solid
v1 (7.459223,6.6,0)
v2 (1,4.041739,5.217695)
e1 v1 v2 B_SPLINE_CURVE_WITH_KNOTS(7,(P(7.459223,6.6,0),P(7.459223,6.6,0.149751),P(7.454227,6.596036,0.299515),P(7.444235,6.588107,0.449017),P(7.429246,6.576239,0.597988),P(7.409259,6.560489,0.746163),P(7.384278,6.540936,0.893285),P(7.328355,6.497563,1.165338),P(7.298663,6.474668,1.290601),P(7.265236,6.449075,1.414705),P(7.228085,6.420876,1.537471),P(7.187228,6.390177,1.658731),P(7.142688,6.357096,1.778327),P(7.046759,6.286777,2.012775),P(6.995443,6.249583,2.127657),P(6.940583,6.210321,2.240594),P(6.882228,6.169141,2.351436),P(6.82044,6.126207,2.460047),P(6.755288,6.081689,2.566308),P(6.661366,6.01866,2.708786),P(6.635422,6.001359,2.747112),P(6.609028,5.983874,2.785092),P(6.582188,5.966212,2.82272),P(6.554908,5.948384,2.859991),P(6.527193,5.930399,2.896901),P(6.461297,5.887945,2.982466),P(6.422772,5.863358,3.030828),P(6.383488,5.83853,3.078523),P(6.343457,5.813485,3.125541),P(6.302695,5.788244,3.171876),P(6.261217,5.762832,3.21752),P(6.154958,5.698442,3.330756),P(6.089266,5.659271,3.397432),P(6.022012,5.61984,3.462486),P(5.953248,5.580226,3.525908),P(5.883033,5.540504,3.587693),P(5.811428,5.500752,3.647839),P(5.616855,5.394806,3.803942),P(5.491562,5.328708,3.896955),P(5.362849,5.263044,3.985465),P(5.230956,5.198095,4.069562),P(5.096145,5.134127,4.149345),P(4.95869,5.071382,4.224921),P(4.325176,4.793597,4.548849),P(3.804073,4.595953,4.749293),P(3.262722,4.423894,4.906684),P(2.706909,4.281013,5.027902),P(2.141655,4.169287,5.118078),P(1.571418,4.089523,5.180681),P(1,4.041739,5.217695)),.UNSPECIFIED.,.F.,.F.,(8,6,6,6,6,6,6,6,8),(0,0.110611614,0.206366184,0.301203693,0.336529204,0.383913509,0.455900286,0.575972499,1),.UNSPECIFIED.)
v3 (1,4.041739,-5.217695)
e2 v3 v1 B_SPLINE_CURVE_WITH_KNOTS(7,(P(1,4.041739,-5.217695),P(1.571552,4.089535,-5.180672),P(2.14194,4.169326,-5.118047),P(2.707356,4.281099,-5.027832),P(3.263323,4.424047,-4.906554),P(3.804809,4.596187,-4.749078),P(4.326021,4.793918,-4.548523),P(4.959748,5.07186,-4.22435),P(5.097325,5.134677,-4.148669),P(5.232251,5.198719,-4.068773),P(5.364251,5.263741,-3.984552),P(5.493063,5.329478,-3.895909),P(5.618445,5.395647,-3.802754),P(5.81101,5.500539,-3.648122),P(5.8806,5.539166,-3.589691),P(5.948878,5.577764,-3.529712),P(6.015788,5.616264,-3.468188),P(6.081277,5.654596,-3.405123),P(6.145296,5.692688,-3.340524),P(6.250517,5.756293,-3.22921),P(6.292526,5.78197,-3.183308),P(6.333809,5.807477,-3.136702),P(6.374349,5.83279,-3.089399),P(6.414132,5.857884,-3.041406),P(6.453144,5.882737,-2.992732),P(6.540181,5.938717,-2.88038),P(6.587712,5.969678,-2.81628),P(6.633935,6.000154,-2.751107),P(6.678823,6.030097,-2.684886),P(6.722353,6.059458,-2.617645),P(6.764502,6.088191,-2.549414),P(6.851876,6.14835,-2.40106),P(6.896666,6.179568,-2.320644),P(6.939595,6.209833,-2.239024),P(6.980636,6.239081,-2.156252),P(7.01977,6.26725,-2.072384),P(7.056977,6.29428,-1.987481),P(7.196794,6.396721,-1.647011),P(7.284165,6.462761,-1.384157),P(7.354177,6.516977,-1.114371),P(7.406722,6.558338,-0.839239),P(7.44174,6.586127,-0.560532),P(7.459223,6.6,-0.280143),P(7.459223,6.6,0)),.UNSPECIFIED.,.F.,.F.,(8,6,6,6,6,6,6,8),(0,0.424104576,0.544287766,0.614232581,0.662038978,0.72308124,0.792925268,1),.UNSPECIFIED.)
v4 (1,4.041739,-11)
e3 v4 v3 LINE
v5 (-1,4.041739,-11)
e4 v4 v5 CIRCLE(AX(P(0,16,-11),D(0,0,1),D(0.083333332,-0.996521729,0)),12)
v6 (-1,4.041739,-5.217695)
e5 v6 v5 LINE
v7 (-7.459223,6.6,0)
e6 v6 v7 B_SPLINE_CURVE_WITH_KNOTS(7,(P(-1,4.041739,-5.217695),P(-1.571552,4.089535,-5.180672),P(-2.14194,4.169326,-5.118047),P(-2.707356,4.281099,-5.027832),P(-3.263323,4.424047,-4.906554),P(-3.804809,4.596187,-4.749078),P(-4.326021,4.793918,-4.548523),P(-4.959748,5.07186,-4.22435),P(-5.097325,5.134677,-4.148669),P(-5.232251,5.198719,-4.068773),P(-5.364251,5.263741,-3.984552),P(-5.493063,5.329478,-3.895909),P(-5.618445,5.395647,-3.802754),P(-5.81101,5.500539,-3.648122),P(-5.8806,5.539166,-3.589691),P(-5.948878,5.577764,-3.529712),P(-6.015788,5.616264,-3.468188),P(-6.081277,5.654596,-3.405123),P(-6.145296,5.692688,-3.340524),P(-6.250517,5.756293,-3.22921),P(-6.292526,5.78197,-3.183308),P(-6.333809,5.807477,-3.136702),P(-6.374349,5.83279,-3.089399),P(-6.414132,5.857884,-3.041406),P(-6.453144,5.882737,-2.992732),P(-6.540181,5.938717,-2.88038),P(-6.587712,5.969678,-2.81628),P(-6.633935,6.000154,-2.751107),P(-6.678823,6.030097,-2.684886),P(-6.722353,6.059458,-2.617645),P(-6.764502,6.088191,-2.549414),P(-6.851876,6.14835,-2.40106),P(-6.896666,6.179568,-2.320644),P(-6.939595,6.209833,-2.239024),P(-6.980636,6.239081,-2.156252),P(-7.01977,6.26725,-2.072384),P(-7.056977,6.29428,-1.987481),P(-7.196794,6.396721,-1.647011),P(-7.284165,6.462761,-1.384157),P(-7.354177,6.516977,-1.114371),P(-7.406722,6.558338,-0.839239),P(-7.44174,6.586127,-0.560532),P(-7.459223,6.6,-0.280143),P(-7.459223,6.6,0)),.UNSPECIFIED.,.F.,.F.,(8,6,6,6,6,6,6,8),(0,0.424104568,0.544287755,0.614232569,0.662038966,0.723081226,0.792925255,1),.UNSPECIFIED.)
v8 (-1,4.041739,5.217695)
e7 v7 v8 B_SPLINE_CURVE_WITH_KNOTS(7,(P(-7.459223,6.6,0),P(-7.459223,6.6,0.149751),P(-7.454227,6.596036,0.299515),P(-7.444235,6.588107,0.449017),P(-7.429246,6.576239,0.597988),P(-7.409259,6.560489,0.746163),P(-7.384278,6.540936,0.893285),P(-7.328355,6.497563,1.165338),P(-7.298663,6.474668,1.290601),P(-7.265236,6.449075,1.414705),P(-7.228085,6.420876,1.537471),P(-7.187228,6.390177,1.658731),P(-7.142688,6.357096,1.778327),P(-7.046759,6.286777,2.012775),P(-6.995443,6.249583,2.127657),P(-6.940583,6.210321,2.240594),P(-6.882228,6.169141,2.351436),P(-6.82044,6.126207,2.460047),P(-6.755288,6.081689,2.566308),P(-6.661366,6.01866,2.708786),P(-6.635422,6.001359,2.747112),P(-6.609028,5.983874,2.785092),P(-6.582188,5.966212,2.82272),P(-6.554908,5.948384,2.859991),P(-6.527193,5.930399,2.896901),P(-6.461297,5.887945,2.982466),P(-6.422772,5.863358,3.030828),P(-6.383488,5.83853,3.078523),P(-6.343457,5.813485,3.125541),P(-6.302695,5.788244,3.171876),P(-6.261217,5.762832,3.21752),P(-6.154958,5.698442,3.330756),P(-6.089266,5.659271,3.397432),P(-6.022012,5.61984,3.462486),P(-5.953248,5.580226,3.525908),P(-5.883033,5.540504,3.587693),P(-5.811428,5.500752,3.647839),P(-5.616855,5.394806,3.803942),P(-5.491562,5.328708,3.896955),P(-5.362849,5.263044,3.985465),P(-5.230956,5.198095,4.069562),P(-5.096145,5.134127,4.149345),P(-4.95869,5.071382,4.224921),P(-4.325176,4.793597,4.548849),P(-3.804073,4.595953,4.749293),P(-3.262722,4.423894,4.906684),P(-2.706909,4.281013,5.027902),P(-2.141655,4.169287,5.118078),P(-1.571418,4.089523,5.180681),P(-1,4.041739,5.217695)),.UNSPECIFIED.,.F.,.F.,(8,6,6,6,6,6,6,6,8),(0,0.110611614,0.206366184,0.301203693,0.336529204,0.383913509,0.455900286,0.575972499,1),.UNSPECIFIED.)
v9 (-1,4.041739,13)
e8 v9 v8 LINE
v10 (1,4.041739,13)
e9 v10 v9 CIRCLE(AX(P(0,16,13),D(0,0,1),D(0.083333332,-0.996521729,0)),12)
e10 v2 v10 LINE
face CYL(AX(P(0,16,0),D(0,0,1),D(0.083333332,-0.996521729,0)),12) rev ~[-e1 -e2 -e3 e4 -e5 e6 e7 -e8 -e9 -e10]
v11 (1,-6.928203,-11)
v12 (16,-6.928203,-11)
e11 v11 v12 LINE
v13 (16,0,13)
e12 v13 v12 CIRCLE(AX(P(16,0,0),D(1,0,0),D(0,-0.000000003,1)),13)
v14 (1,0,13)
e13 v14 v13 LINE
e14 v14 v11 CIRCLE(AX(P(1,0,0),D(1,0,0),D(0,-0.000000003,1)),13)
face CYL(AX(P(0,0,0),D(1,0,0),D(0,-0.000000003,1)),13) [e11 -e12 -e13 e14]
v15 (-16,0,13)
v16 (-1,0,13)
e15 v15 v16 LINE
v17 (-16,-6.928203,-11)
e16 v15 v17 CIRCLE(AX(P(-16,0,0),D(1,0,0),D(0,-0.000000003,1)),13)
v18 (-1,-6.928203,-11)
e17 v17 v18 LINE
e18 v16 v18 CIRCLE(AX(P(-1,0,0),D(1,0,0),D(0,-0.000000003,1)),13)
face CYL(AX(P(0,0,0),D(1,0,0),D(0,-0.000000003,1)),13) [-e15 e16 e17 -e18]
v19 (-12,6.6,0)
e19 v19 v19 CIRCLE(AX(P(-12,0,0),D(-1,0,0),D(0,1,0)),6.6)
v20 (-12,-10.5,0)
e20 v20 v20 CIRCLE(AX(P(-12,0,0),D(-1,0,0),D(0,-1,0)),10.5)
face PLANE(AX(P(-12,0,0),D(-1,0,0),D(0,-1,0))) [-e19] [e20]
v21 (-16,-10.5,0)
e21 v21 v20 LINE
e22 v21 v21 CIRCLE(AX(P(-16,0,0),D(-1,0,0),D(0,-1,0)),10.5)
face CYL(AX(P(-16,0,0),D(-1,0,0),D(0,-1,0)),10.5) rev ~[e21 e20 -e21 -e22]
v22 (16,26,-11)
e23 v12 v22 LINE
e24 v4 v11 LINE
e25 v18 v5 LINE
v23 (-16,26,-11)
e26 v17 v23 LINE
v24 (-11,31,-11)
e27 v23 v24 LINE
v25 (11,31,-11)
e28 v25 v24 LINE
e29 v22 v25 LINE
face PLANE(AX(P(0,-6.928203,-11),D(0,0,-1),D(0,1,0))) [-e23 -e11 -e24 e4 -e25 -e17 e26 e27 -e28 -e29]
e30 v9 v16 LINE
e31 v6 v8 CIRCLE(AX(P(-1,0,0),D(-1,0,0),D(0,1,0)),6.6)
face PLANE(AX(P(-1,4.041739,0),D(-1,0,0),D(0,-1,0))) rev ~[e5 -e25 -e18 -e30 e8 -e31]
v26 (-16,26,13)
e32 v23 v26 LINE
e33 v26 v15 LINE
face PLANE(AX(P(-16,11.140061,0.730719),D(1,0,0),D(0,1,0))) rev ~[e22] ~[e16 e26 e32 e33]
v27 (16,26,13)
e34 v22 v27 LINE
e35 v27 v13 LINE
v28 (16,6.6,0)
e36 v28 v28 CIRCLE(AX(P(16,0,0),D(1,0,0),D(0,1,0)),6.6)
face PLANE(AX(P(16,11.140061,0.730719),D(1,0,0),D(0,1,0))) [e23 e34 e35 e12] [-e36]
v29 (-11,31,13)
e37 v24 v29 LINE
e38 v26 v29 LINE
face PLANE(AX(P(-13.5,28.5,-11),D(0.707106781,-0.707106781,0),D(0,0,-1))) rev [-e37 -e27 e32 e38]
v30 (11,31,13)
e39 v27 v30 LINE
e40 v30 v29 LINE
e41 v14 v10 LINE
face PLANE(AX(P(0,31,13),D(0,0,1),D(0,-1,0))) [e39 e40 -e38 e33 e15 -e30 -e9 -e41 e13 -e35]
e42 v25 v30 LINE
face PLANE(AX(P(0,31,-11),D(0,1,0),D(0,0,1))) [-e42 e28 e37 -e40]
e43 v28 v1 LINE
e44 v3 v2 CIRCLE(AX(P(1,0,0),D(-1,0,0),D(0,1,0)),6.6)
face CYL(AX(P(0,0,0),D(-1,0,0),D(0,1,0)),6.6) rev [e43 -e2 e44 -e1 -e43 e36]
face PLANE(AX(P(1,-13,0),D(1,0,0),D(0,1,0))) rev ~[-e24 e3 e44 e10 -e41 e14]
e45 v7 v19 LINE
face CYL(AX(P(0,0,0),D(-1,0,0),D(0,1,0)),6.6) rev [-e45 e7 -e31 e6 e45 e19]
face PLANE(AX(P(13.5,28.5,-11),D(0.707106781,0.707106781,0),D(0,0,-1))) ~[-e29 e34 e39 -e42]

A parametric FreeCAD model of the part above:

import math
import FreeCAD as App
import Part
import Sketcher

V = App.Vector


def edges_at(feature, points):
    """Names of the edges that pass closest to the given points."""
    edges = feature.Shape.Edges
    near = lambda p: min(range(len(edges)), key=lambda i: edges[i].distToShape(Part.Vertex(*p))[0])
    return sorted({f"Edge{near(p) + 1}" for p in points})

doc = App.newDocument("Part")
params = doc.addObject("Spreadsheet::Sheet", "Params")
for row, (alias, value) in enumerate([
    ("sketch1_radius", "13 mm"),
    ("sketch1_diameter", "13.2 mm"),
    ("sketch1_width", "31 mm"),
    ("sketch1_height", "24 mm"),
    ("pad1_length", "32 mm"),
    ("sketch2_diameter", "21 mm"),
    ("sketch2_diameter2", "13.2 mm"),
    ("pocket1_length", "4 mm"),
    ("sketch3_radius", "12 mm"),
    ("sketch3_width", "2 mm"),
    ("pocket2_length", "30 mm"),
    ("chamfer_size", "5 mm"),
], start=1):
    params.set(f"A{row}", alias)
    params.set(f"B{row}", "=" + value)
    params.setAlias(f"B{row}", alias)

body = doc.addObject("PartDesign::Body", "Body")

# Sketch on YZ plane
sketch1 = body.newObject("Sketcher::SketchObject", "Sketch")
sketch1.AttachmentSupport = (doc.getObject("YZ_Plane"), [""])
sketch1.MapMode = "FlatFace"
sketch1.addGeometry([
    Part.LineSegment(V(31, 13, 0), V(0, 13, 0)),  # 0
    Part.ArcOfCircle(Part.Circle(V(0, 0, 0), V(0, 0, 1), 13), math.radians(90), math.radians(238)),  # 1
    Part.LineSegment(V(-7, -11, 0), V(31, -11, 0)),  # 2
    Part.LineSegment(V(31, -11, 0), V(31, 13, 0)),  # 3
    Part.Circle(V(0, 0, 0), V(0, 0, 1), 7),  # 4
], False)
sketch1.addConstraint([
    Sketcher.Constraint("Tangent", 0, 2, 1, 1),
    Sketcher.Constraint("Coincident", 1, 2, 2, 1),
    Sketcher.Constraint("Coincident", 2, 2, 3, 1),
    Sketcher.Constraint("Coincident", 3, 2, 0, 1),
    Sketcher.Constraint("Horizontal", 0),
    Sketcher.Constraint("Horizontal", 2),
    Sketcher.Constraint("Vertical", 3),
    Sketcher.Constraint("Coincident", 1, 3, -1, 1),
    Sketcher.Constraint("Coincident", 4, 3, -1, 1),
    Sketcher.Constraint("Radius", 1, 13.0),
    Sketcher.Constraint("Diameter", 4, 13.2),
    Sketcher.Constraint("DistanceX", 0, 2, 0, 1, 31.0),
    Sketcher.Constraint("DistanceY", 3, 1, 3, 2, 24.0),
])
sketch1.setExpression("Constraints[9]", "Params.sketch1_radius")
sketch1.setExpression("Constraints[10]", "Params.sketch1_diameter")
sketch1.setExpression("Constraints[11]", "Params.sketch1_width")
sketch1.setExpression("Constraints[12]", "Params.sketch1_height")
pad1 = body.newObject("PartDesign::Pad", "Pad")
pad1.Profile = sketch1
pad1.setExpression("Length", "Params.pad1_length")
pad1.Midplane = True

# Sketch on YZ plane
sketch2 = body.newObject("Sketcher::SketchObject", "Sketch001")
sketch2.AttachmentSupport = (doc.getObject("YZ_Plane"), [""])
sketch2.MapMode = "FlatFace"
sketch2.AttachmentOffset = App.Placement(V(0, 0, -16), App.Rotation())
sketch2.addGeometry([
    Part.Circle(V(0, 0, 0), V(0, 0, 1), 10),
    Part.Circle(V(0, 0, 0), V(0, 0, 1), 7),
], False)
sketch2.addConstraint([
    Sketcher.Constraint("Coincident", 0, 3, -1, 1),
    Sketcher.Constraint("Coincident", 1, 3, -1, 1),
    Sketcher.Constraint("Diameter", 0, 21.0),
    Sketcher.Constraint("Diameter", 1, 13.2),
])
sketch2.setExpression("Constraints[2]", "Params.sketch2_diameter")
sketch2.setExpression("Constraints[3]", "Params.sketch2_diameter2")
pocket1 = body.newObject("PartDesign::Pocket", "Pocket")
pocket1.Profile = sketch2
pocket1.setExpression("Length", "Params.pocket1_length")
pocket1.Reversed = True

# Sketch on XY plane
sketch3 = body.newObject("Sketcher::SketchObject", "Sketch002")
sketch3.AttachmentSupport = (doc.getObject("XY_Plane"), [""])
sketch3.MapMode = "FlatFace"
sketch3.addGeometry([
    Part.LineSegment(V(-1, -13, 0), V(1, -13, 0)),
    Part.LineSegment(V(1, -13, 0), V(1, 4, 0)),
    Part.ArcOfCircle(Part.Circle(V(0, 16, 0), V(0, 0, 1), 12), math.radians(-85), math.radians(265)),
    Part.LineSegment(V(-1, 4, 0), V(-1, -13, 0)),
], False)
sketch3.addConstraint([
    Sketcher.Constraint("Coincident", 0, 2, 1, 1),
    Sketcher.Constraint("Coincident", 1, 2, 2, 1),
    Sketcher.Constraint("Coincident", 2, 2, 3, 1),
    Sketcher.Constraint("Coincident", 3, 2, 0, 1),
    Sketcher.Constraint("Horizontal", 0),
    Sketcher.Constraint("Vertical", 1),
    Sketcher.Constraint("Vertical", 3),
    Sketcher.Constraint("Symmetric", 1, 2, 2, 2, -2),
    Sketcher.Constraint("Radius", 2, 12.0),
    Sketcher.Constraint("DistanceX", 0, 1, 0, 2, 2.0),
    Sketcher.Constraint("DistanceY", -1, 1, 2, 3, 16.0),
    Sketcher.Constraint("DistanceY", 0, 2, -1, 1, 13.0),
])
sketch3.setExpression("Constraints[8]", "Params.sketch3_radius")
sketch3.setExpression("Constraints[9]", "Params.sketch3_width")
pocket2 = body.newObject("PartDesign::Pocket", "Pocket001")
pocket2.Profile = sketch3
pocket2.setExpression("Length", "Params.pocket2_length")
pocket2.Midplane = True
doc.recompute()

chamfer = body.newObject("PartDesign::Chamfer", "Chamfer")
chamfer.Base = (pocket2, edges_at(pocket2, [(16, 31, 1), (-16, 31, 1)]))
chamfer.setExpression("Size", "Params.chamfer_size")

doc.recompute()
